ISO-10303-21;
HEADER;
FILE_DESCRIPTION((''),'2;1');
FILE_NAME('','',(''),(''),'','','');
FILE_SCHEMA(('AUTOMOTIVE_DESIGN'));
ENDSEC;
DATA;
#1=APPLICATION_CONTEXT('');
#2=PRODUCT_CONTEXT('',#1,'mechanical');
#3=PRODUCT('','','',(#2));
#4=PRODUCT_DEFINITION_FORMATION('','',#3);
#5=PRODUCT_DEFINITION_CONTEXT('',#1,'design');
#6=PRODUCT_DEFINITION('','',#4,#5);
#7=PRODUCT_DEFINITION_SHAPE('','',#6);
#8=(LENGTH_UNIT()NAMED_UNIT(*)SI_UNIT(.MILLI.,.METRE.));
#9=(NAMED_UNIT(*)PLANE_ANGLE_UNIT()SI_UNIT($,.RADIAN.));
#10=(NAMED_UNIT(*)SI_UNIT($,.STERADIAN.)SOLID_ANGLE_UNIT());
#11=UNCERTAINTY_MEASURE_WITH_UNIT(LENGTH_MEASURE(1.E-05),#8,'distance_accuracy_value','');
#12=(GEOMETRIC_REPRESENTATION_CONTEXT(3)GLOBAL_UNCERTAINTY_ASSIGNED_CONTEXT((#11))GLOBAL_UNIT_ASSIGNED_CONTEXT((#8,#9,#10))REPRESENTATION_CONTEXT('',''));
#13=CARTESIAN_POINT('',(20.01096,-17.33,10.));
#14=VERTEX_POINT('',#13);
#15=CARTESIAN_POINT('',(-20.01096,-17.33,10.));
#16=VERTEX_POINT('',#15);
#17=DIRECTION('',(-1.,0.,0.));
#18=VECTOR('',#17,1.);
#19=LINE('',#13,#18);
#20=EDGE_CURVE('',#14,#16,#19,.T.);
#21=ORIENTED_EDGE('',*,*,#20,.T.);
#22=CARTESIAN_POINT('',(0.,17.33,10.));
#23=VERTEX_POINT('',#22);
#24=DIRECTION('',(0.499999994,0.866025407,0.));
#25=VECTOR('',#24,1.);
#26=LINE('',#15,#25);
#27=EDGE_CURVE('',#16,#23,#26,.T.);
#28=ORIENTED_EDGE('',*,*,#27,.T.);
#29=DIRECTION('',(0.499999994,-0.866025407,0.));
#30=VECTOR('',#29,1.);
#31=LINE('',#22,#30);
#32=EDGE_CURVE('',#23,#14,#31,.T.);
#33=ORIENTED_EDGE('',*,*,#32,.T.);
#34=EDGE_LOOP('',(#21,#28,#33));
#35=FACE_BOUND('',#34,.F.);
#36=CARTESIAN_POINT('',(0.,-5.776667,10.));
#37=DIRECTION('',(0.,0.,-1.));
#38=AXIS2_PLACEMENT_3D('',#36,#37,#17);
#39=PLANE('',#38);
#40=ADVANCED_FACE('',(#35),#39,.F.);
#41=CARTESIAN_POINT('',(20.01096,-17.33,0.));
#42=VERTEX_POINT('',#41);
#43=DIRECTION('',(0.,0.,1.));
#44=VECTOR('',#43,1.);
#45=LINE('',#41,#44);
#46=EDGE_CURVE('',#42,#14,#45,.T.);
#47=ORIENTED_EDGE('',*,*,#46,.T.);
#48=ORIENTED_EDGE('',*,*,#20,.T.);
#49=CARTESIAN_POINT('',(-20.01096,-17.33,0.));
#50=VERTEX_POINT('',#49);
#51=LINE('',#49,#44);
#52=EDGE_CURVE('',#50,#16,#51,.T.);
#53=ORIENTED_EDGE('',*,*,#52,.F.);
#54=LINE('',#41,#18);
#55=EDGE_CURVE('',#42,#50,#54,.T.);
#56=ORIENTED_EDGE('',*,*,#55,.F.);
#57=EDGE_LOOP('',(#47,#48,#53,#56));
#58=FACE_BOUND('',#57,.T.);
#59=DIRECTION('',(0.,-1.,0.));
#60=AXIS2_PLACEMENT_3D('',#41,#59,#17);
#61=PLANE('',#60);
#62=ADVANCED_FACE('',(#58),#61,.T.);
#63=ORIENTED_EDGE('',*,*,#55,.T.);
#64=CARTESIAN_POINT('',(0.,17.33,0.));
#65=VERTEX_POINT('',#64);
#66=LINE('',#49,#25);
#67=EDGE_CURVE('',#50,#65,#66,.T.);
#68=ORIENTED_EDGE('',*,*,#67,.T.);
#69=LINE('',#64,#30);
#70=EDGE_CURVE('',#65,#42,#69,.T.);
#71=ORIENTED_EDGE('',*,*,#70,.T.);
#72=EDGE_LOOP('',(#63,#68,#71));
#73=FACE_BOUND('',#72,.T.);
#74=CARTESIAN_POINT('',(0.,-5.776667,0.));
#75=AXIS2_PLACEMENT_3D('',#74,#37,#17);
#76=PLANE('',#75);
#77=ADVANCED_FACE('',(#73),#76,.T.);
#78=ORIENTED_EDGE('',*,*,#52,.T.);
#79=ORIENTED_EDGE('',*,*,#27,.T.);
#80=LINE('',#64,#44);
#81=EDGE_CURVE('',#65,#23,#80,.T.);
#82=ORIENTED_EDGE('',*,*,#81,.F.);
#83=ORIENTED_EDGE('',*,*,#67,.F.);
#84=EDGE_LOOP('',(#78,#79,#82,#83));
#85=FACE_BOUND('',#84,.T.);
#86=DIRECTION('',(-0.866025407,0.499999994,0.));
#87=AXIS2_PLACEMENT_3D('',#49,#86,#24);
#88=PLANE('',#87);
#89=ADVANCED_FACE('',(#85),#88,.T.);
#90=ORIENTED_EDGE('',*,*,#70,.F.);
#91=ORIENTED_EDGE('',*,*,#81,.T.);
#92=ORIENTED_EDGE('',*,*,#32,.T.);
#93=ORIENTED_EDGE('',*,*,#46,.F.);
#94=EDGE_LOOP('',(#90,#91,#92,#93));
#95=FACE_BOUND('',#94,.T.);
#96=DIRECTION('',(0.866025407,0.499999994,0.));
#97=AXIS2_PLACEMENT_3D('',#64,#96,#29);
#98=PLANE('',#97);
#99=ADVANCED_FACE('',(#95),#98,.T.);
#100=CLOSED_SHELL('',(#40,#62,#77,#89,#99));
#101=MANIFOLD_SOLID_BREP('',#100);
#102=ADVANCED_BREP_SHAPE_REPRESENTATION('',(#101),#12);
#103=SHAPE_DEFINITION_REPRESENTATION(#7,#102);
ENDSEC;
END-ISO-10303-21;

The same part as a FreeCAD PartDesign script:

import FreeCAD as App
import Part
import Sketcher
Q = App.Units.Quantity


def add_polygon(sketch, points):
    """Adds a closed chain of lines whose ends are joined by coincident constraints."""
    first, n = sketch.GeometryCount, len(points)
    for a, b in zip(points, points[1:] + points[:1]):
        sketch.addGeometry(Part.LineSegment(App.Vector(*a, 0), App.Vector(*b, 0)), False)
    for i in range(n):
        sketch.addConstraint(Sketcher.Constraint("Coincident", first + i, 2, first + (i + 1) % n, 1))

doc = App.newDocument("Part")
params = doc.addObject("Spreadsheet::Sheet", "Params")
for row, (alias, value) in enumerate([
    ("pad1_length", "10 mm"),
], start=1):
    params.set(f"A{row}", alias)
    params.set(f"B{row}", "=" + value)
    params.setAlias(f"B{row}", alias)

body = doc.addObject("PartDesign::Body", "Body")

sketch1 = body.newObject("Sketcher::SketchObject", "Sketch")
sketch1.AttachmentSupport = (doc.getObject("XY_Plane"), [""])
sketch1.MapMode = "FlatFace"
add_polygon(sketch1, [(0, 17.33), (-20.01096, -17.33), (20.01096, -17.33)])
sketch1.addConstraint([
    Sketcher.Constraint("Horizontal", 1),
    Sketcher.Constraint("PointOnObject", 2, 2, -2),
    Sketcher.Constraint("Equal", 0, 2),
    Sketcher.Constraint("Angle", 0, Q("-120 deg")),
    Sketcher.Constraint("DistanceY", 0, 2, -1, 1, 17.33),
    Sketcher.Constraint("DistanceY", -1, 1, 2, 2, 17.33),
])
pad1 = body.newObject("PartDesign::Pad", "Pad")
pad1.Profile = sketch1
pad1.setExpression("Length", "Params.pad1_length")

doc.recompute()
